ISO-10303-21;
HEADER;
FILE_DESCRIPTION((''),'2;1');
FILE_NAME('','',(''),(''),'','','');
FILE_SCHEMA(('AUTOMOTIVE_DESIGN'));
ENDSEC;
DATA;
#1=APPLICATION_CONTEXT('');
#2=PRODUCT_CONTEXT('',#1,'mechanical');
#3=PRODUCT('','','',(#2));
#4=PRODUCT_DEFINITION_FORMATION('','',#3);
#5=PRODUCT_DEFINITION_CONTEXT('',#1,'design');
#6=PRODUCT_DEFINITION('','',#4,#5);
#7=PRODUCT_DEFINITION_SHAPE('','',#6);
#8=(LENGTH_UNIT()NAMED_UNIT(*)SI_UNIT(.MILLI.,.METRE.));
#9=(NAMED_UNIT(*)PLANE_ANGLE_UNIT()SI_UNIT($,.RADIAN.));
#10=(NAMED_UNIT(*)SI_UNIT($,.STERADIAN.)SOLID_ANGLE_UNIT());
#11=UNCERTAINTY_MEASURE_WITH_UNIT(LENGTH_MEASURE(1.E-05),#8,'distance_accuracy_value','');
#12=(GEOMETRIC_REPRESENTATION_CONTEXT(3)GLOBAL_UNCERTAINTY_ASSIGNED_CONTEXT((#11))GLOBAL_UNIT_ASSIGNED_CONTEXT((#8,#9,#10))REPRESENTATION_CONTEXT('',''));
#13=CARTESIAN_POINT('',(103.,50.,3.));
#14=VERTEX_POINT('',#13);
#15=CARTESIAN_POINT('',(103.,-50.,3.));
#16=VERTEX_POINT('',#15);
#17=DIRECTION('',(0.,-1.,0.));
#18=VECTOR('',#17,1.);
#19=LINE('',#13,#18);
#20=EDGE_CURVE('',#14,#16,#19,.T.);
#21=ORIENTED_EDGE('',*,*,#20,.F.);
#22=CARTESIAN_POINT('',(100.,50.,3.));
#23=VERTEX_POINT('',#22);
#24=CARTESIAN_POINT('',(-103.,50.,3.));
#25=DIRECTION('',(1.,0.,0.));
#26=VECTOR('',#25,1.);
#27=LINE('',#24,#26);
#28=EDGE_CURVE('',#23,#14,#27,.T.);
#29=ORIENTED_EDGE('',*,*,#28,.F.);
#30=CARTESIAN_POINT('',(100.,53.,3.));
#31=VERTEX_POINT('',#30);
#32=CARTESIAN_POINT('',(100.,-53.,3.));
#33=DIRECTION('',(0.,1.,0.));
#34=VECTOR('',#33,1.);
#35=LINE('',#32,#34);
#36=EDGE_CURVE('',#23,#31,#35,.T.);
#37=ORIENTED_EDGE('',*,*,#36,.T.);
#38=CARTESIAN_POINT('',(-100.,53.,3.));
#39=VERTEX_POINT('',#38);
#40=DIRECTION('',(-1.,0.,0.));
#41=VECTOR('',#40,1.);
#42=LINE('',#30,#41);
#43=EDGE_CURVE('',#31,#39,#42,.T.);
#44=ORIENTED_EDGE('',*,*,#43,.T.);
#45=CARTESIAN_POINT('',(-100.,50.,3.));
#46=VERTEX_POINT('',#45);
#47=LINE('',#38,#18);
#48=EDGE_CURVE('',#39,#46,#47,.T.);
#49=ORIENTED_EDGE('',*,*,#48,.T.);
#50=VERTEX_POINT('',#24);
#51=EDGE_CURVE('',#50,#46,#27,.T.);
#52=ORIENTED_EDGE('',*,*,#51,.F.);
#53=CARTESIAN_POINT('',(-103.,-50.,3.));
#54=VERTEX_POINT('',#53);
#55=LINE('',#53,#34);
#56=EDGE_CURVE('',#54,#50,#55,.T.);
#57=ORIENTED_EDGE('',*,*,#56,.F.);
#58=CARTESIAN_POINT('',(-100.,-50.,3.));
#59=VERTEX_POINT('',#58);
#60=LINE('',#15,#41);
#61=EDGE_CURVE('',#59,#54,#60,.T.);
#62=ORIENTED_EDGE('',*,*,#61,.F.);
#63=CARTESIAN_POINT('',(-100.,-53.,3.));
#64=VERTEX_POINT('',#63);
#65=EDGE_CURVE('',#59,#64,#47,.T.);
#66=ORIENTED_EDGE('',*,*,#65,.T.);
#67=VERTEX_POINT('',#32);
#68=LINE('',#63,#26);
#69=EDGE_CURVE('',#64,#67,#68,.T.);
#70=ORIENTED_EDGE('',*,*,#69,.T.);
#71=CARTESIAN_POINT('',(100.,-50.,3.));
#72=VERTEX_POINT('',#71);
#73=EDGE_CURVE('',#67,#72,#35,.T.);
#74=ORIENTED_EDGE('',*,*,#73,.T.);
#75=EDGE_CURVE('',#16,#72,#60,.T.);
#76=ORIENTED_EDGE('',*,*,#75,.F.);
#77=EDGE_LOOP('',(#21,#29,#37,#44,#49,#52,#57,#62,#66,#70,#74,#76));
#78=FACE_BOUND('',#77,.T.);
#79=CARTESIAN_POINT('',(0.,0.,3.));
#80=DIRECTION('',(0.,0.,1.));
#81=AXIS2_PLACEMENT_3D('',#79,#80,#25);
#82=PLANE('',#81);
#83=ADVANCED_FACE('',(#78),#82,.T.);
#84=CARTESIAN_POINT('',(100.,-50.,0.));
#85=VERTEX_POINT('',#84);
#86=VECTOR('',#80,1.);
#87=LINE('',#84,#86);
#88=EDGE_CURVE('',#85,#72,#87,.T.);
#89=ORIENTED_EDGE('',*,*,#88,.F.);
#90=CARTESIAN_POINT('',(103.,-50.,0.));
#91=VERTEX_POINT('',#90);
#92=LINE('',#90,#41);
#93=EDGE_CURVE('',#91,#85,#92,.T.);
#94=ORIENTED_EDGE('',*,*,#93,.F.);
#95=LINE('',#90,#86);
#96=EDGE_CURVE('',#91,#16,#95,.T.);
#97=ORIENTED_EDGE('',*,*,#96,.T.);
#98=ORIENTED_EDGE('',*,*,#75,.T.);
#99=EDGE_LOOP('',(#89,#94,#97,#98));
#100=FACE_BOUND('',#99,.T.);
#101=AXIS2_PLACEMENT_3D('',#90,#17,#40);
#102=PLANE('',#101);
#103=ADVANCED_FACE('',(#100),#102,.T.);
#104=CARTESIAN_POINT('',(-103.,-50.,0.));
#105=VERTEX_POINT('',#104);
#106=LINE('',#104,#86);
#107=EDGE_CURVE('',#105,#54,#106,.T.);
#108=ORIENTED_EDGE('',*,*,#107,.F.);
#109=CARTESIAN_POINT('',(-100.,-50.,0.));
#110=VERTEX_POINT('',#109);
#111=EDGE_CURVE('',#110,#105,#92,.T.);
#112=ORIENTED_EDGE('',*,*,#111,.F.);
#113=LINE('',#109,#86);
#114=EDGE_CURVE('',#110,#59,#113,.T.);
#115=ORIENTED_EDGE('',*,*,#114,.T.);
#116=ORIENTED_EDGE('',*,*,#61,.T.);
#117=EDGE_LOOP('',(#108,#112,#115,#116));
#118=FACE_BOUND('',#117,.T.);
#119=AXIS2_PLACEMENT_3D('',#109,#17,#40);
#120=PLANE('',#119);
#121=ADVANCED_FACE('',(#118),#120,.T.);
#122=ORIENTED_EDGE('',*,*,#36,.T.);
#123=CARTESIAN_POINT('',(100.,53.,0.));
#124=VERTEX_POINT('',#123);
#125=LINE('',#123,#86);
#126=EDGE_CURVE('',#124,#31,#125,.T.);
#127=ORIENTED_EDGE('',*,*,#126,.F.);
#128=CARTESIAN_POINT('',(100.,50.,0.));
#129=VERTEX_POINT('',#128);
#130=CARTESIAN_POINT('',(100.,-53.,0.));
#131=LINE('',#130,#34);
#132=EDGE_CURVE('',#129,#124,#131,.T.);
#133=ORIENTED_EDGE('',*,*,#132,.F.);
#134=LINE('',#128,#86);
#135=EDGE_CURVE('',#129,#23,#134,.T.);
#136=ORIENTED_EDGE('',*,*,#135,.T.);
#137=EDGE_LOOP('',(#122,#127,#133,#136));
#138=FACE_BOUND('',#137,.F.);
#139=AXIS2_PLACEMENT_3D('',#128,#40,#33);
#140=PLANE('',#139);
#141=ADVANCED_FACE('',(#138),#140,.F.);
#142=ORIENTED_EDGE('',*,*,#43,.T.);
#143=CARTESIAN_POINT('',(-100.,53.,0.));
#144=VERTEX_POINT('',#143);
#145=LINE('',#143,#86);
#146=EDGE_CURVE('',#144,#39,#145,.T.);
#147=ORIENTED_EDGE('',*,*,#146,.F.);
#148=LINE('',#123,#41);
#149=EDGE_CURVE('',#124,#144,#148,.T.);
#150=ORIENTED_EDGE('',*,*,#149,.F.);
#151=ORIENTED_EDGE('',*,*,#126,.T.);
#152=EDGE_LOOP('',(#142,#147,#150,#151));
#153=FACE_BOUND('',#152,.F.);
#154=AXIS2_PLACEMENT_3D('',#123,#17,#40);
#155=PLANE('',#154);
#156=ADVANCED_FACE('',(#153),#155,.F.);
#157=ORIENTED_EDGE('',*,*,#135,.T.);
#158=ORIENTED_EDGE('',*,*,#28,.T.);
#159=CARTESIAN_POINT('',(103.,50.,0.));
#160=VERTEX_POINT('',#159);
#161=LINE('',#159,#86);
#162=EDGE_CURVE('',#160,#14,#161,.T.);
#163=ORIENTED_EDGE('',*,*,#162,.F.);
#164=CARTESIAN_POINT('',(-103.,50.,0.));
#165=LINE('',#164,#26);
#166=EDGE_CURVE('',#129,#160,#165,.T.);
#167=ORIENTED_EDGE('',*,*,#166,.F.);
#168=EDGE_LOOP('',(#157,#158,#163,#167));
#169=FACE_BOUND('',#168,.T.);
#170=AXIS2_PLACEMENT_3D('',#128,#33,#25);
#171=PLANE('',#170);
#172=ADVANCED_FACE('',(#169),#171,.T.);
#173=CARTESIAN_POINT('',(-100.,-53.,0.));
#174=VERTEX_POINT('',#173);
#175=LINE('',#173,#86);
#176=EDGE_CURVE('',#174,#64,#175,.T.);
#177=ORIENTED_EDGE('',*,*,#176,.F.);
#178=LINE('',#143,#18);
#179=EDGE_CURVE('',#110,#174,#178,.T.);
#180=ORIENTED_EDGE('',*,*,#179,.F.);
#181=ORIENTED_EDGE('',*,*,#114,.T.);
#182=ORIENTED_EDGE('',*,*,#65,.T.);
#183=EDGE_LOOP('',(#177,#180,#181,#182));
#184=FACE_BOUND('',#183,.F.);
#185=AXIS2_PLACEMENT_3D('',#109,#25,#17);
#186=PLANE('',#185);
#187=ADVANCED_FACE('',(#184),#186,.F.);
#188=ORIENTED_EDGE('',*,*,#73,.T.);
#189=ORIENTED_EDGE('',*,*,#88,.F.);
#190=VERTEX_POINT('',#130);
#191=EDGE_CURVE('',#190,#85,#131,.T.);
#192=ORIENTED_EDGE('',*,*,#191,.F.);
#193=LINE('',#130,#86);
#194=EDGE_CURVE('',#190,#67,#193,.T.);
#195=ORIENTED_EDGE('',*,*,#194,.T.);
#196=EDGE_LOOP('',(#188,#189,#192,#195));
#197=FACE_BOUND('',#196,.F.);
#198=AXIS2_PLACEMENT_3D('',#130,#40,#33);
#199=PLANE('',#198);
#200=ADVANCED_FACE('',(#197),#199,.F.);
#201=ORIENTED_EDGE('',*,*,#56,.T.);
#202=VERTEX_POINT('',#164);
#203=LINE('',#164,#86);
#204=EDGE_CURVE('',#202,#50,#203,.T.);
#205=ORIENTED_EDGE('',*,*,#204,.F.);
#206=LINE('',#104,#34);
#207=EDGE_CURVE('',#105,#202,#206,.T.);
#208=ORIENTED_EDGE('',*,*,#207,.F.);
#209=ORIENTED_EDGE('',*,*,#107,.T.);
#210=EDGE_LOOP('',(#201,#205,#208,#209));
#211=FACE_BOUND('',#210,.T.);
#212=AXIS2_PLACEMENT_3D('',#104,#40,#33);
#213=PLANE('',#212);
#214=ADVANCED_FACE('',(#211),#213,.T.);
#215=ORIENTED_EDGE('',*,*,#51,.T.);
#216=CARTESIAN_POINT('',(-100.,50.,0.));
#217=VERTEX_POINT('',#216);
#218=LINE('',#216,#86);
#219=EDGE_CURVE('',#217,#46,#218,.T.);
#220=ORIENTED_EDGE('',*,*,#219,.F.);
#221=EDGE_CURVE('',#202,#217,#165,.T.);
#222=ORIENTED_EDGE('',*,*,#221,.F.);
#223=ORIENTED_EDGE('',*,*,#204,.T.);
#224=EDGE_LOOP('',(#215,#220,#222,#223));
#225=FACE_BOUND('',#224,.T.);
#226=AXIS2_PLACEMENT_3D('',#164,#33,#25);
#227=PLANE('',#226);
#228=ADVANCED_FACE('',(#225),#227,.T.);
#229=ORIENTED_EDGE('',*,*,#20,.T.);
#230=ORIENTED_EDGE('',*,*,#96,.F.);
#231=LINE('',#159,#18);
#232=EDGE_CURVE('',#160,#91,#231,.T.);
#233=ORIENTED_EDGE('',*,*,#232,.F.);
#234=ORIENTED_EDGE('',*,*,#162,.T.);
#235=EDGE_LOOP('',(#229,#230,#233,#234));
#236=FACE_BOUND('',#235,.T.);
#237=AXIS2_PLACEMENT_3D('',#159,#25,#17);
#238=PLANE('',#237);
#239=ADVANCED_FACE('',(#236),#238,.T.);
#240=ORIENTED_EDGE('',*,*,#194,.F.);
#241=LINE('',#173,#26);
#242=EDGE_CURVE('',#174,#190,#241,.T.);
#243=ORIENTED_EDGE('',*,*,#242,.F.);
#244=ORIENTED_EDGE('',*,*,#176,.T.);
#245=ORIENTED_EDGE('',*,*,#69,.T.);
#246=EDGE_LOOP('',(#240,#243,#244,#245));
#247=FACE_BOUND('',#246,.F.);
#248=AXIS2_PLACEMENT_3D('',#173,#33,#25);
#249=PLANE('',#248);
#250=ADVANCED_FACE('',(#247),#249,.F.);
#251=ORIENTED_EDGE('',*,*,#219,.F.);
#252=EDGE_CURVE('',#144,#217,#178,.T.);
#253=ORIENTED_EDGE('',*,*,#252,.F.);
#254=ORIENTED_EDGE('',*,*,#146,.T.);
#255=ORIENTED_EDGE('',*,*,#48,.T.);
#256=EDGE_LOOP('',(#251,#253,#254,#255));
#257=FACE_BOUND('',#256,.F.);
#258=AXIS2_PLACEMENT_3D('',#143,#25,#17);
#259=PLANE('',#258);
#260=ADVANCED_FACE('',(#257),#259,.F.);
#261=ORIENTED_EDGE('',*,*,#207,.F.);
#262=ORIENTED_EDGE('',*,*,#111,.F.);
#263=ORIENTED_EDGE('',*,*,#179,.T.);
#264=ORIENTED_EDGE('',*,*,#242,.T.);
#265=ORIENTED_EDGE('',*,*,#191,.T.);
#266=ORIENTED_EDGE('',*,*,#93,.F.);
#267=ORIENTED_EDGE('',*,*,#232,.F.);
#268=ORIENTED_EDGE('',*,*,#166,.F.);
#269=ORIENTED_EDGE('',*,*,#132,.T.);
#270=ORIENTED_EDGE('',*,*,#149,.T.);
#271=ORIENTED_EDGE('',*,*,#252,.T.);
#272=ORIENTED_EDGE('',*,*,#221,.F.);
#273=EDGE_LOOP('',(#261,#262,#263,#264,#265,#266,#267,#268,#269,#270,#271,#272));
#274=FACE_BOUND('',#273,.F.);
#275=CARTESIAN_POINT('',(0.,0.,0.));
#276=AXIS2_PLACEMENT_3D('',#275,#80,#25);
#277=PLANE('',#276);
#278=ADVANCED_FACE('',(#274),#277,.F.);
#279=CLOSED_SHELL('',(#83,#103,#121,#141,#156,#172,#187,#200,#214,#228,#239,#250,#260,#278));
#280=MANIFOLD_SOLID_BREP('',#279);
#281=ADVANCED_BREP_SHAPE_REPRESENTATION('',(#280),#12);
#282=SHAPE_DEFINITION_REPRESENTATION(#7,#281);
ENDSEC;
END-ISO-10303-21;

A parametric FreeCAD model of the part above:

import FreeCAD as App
import Part
import Sketcher
from FreeCAD import Vector

doc = App.newDocument("Part")
params = doc.addObject("Spreadsheet::Sheet", "Params")
for row, (alias, value) in enumerate([
    ("sketch1_width", "200 mm"),
    ("sketch1_height", "100 mm"),
    ("pad1_length", "3 mm"),
], start=1):
    params.set(f"A{row}", alias)
    params.set(f"B{row}", "=" + value)
    params.setAlias(f"B{row}", alias)

body = doc.addObject("PartDesign::Body", "Body")

# Sketch on XY plane
sketch1 = doc.addObject("Sketcher::SketchObject", "Sketch")
body.addObject(sketch1)
sketch1.AttachmentSupport = (doc.XY_Plane, [""])
sketch1.MapMode = "FlatFace"
sketch1.addGeometry([
    Part.LineSegment(Vector(100, -50, 0), Vector(103, -50, 0)),  # 0
    Part.LineSegment(Vector(103, -50, 0), Vector(103, 50, 0)),  # 1
    Part.LineSegment(Vector(103, 50, 0), Vector(100, 50, 0)),  # 2
    Part.LineSegment(Vector(100, 50, 0), Vector(100, 53, 0)),  # 3
    Part.LineSegment(Vector(100, 53, 0), Vector(-100, 53, 0)),  # 4
    Part.LineSegment(Vector(-100, 53, 0), Vector(-100, 50, 0)),  # 5
    Part.LineSegment(Vector(-100, 50, 0), Vector(-103, 50, 0)),  # 6
    Part.LineSegment(Vector(-103, 50, 0), Vector(-103, -50, 0)),  # 7
    Part.LineSegment(Vector(-103, -50, 0), Vector(-100, -50, 0)),  # 8
    Part.LineSegment(Vector(-100, -50, 0), Vector(-100, -53, 0)),  # 9
    Part.LineSegment(Vector(-100, -53, 0), Vector(100, -53, 0)),  # 10
    Part.LineSegment(Vector(100, -53, 0), Vector(100, -50, 0)),  # 11
], False)
sketch1.addConstraint([
    Sketcher.Constraint("Coincident", 0, 2, 1, 1),
    Sketcher.Constraint("Coincident", 1, 2, 2, 1),
    Sketcher.Constraint("Coincident", 2, 2, 3, 1),
    Sketcher.Constraint("Coincident", 3, 2, 4, 1),
    Sketcher.Constraint("Coincident", 4, 2, 5, 1),
    Sketcher.Constraint("Coincident", 5, 2, 6, 1),
    Sketcher.Constraint("Coincident", 6, 2, 7, 1),
    Sketcher.Constraint("Coincident", 7, 2, 8, 1),
    Sketcher.Constraint("Coincident", 8, 2, 9, 1),
    Sketcher.Constraint("Coincident", 9, 2, 10, 1),
    Sketcher.Constraint("Coincident", 10, 2, 11, 1),
    Sketcher.Constraint("Coincident", 11, 2, 0, 1),
    Sketcher.Constraint("Horizontal", 0),
    Sketcher.Constraint("Vertical", 1),
    Sketcher.Constraint("Horizontal", 2),
    Sketcher.Constraint("Vertical", 3),
    Sketcher.Constraint("Horizontal", 4),
    Sketcher.Constraint("Vertical", 5),
    Sketcher.Constraint("Horizontal", 6),
    Sketcher.Constraint("Vertical", 7),
    Sketcher.Constraint("Horizontal", 8),
    Sketcher.Constraint("Vertical", 9),
    Sketcher.Constraint("Horizontal", 10),
    Sketcher.Constraint("Vertical", 11),
    Sketcher.Constraint("Symmetric", 0, 2, 6, 2, -1, 1),
    Sketcher.Constraint("Symmetric", 2, 2, 8, 2, -1, 1),
    Sketcher.Constraint("Symmetric", 4, 2, 10, 2, -1, 1),
    Sketcher.Constraint("Symmetric", 2, 2, 5, 2, -2),
    Sketcher.Constraint("Equal", 8, 3),
    Sketcher.Constraint("DistanceX", 4, 2, 4, 1, 200.0),
    Sketcher.Constraint("DistanceY", 1, 1, 1, 2, 100.0),
    Sketcher.Constraint("DistanceX", 6, 2, 1, 2, 206.0),
])
sketch1.setExpression("Constraints[29]", "Params.sketch1_width")
sketch1.setExpression("Constraints[30]", "Params.sketch1_height")
pad1 = doc.addObject("PartDesign::Pad", "Pad")
body.addObject(pad1)
pad1.Profile = sketch1
pad1.setExpression("Length", "Params.pad1_length")

doc.recompute()
